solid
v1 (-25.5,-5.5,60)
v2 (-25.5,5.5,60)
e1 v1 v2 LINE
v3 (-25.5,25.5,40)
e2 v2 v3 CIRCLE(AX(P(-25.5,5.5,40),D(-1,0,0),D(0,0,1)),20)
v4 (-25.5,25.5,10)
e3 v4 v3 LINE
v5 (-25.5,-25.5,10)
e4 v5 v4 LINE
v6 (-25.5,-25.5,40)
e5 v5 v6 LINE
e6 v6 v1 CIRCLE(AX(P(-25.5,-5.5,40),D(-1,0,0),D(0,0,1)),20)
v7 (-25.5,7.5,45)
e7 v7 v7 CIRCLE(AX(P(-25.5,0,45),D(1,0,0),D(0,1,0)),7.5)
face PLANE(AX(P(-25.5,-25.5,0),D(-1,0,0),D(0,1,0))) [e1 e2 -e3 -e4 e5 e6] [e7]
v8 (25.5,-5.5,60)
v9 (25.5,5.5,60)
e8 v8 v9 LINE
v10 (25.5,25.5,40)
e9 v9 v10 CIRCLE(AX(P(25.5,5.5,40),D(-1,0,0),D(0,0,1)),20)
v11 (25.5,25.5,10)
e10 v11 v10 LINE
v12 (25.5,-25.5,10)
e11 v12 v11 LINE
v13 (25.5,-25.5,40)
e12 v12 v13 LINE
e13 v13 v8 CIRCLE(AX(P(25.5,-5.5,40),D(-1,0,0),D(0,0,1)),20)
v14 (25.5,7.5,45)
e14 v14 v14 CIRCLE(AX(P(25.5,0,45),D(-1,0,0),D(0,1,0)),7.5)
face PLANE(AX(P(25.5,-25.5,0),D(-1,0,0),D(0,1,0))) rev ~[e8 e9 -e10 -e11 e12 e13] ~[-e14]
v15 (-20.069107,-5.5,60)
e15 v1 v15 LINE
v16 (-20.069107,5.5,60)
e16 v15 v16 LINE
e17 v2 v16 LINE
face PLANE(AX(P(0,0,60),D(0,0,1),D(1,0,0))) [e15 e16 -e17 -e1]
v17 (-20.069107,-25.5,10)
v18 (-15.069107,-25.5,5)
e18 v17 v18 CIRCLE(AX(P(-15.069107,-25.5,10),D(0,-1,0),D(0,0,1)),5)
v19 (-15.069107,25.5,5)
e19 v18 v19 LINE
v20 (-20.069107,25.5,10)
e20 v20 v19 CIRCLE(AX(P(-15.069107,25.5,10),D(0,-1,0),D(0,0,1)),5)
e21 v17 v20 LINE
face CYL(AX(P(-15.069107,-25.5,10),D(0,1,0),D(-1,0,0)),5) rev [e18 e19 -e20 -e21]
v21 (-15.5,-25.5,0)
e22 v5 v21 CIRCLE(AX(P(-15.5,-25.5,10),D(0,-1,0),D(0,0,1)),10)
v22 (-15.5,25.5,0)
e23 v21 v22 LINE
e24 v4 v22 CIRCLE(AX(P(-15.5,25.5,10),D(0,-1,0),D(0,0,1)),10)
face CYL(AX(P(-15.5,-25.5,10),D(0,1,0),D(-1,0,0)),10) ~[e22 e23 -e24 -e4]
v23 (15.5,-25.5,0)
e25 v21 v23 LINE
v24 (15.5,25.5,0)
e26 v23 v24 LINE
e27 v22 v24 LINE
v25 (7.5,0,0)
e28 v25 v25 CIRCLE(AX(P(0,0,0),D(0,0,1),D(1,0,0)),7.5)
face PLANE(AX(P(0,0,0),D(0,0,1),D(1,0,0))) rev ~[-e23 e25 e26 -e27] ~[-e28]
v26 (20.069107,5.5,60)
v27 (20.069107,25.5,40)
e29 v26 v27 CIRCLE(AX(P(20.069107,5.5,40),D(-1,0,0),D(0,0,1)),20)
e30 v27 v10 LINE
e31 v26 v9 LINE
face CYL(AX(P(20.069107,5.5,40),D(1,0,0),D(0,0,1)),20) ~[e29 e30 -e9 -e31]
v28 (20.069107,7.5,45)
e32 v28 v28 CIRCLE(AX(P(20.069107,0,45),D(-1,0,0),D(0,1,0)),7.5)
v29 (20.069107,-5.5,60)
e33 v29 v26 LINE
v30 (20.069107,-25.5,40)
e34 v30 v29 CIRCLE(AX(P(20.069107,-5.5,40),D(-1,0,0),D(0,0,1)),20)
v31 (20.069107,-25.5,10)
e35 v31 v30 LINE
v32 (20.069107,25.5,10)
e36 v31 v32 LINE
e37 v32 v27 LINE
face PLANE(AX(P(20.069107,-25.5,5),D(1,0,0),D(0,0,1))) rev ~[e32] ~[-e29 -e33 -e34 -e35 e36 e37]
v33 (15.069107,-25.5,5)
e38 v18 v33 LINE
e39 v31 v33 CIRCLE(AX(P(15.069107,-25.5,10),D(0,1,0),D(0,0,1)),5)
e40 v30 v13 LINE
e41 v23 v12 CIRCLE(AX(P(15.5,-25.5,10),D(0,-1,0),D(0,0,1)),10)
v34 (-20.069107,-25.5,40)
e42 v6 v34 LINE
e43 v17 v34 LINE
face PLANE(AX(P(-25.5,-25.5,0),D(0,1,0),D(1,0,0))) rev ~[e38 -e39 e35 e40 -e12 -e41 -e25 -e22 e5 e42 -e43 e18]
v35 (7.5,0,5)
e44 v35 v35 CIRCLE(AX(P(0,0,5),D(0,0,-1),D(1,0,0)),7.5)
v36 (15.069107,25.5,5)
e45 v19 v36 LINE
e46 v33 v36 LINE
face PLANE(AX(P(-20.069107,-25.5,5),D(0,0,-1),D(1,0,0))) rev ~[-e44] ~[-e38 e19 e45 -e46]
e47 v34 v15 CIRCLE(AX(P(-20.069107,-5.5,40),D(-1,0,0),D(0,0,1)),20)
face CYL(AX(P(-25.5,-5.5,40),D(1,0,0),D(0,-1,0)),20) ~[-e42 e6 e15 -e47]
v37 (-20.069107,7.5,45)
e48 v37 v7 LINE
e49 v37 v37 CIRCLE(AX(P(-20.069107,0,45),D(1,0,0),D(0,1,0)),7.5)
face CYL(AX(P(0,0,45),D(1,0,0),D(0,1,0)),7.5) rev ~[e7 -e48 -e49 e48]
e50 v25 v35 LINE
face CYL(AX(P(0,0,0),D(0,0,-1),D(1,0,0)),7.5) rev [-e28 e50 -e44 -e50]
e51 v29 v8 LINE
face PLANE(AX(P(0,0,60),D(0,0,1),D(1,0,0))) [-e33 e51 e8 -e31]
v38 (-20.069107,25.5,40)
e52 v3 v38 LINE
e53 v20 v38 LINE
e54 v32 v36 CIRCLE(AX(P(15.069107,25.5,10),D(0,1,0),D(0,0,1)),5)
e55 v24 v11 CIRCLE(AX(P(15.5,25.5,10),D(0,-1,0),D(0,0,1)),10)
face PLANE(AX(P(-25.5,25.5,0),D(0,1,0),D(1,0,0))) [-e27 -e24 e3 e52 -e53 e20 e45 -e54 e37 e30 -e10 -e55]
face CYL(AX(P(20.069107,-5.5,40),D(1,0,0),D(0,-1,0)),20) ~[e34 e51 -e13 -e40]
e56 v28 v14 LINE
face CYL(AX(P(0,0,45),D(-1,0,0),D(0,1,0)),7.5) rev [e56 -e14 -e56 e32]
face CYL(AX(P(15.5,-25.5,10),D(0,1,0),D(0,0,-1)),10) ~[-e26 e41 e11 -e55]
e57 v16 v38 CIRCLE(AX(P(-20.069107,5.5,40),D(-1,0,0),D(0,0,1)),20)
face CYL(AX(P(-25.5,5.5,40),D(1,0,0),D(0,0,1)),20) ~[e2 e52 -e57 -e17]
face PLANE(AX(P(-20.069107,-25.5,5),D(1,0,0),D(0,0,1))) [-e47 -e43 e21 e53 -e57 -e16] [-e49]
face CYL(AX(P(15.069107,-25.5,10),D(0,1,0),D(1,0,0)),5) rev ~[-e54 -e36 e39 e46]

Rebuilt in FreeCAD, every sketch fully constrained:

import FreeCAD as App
import Part
import Sketcher
Q = App.Units.Quantity


def edges_at(feature, points):
    """Names of the edges that pass closest to the given points."""
    edges = feature.Shape.Edges
    near = lambda p: min(range(len(edges)), key=lambda i: edges[i].distToShape(Part.Vertex(*p))[0])
    return sorted({f"Edge{near(p) + 1}" for p in points})


def add_polygon(sketch, points):
    """Adds a closed chain of lines whose ends are joined by coincident constraints."""
    first, n = sketch.GeometryCount, len(points)
    for a, b in zip(points, points[1:] + points[:1]):
        sketch.addGeometry(Part.LineSegment(App.Vector(*a, 0), App.Vector(*b, 0)), False)
    for i in range(n):
        sketch.addConstraint(Sketcher.Constraint("Coincident", first + i, 2, first + (i + 1) % n, 1))

doc = App.newDocument("Part")
params = doc.addObject("Spreadsheet::Sheet", "Params")
for row, (alias, value) in enumerate([
    ("sketch1_width", "51 mm"),
    ("pad1_length", "60 mm"),
    ("sketch2_height", "55 mm"),
    ("pocket1_length", "51 mm"),
    ("sketch3_diameter", "15 mm"),
    ("sketch4_diameter", "15 mm"),
    ("fillet_radius", "10 mm"),
    ("fillet2_radius", "5 mm"),
    ("fillet3_radius", "20 mm"),
], start=1):
    params.set(f"A{row}", alias)
    params.set(f"B{row}", "=" + value)
    params.setAlias(f"B{row}", alias)

body = doc.addObject("PartDesign::Body", "Body")

sketch1 = body.newObject("Sketcher::SketchObject", "Sketch")
sketch1.AttachmentSupport = (doc.getObject("XY_Plane"), [""])
sketch1.MapMode = "FlatFace"
add_polygon(sketch1, [(-26, 26), (-26, -26), (26, -26), (26, 26)])
sketch1.addConstraint([
    Sketcher.Constraint("Vertical", 0),
    Sketcher.Constraint("Horizontal", 1),
    Sketcher.Constraint("Vertical", 2),
    Sketcher.Constraint("Horizontal", 3),
    Sketcher.Constraint("Symmetric", 0, 2, 2, 2, -1, 1),
    Sketcher.Constraint("Equal", 3, 0),
    Sketcher.Constraint("DistanceX", 1, 1, 1, 2, Q("51 mm")),
])
sketch1.setExpression("Constraints[10]", "Params.sketch1_width")
pad1 = body.newObject("PartDesign::Pad", "Pad")
pad1.Profile = sketch1
pad1.setExpression("Length", "Params.pad1_length")

sketch2 = body.newObject("Sketcher::SketchObject", "Sketch001")
sketch2.AttachmentSupport = (doc.getObject("XZ_Plane"), [""])
sketch2.MapMode = "FlatFace"
sketch2.AttachmentOffset = App.Placement(App.Vector(0, 0, 25.5), App.Rotation())
add_polygon(sketch2, [(-20, 60), (-20, 5), (20, 5), (20, 60)])
sketch2.addConstraint([
    Sketcher.Constraint("Vertical", 0),
    Sketcher.Constraint("Horizontal", 1),
    Sketcher.Constraint("Vertical", 2),
    Sketcher.Constraint("Horizontal", 3),
    Sketcher.Constraint("DistanceY", 0, 2, 0, 1, Q("55 mm")),
    Sketcher.Constraint("DistanceY", -1, 1, 0, 2, Q("5 mm")),
    Sketcher.Constraint("DistanceX", 1, 1, 1, 2, Q("40.138214 mm")),
    Sketcher.Constraint("DistanceX", 0, 2, -1, 1, Q("20.069107 mm")),
])
sketch2.setExpression("Constraints[8]", "Params.sketch2_height")
pocket1 = body.newObject("PartDesign::Pocket", "Pocket")
pocket1.Profile = sketch2
pocket1.setExpression("Length", "Params.pocket1_length")

sketch3 = body.newObject("Sketcher::SketchObject", "Sketch002")
sketch3.AttachmentSupport = (doc.getObject("XY_Plane"), [""])
sketch3.MapMode = "FlatFace"
sketch3.addGeometry(Part.Circle(App.Vector(0, 0, 0), App.Vector(0, 0, 1), 8), False)
sketch3.addConstraint([
    Sketcher.Constraint("Coincident", 0, 3, -1, 1),
    Sketcher.Constraint("Diameter", 0, Q("15 mm")),
])
sketch3.setExpression("Constraints[1]", "Params.sketch3_diameter")
pocket2 = body.newObject("PartDesign::Pocket", "Pocket001")
pocket2.Profile = sketch3
pocket2.Type = "ThroughAll"
pocket2.Reversed = True

sketch4 = body.newObject("Sketcher::SketchObject", "Sketch003")
sketch4.AttachmentSupport = (doc.getObject("YZ_Plane"), [""])
sketch4.MapMode = "FlatFace"
sketch4.addGeometry(Part.Circle(App.Vector(0, 45, 0), App.Vector(0, 0, 1), 8), False)
sketch4.addConstraint([
    Sketcher.Constraint("PointOnObject", 0, 3, -2),
    Sketcher.Constraint("Diameter", 0, Q("15 mm")),
    Sketcher.Constraint("DistanceY", -1, 1, 0, 3, Q("45 mm")),
])
sketch4.setExpression("Constraints[1]", "Params.sketch4_diameter")
pocket3 = body.newObject("PartDesign::Pocket", "Pocket002")
pocket3.Profile = sketch4
pocket3.Type = "ThroughAll"
pocket3.Midplane = True
doc.recompute()

fillet = body.newObject("PartDesign::Fillet", "Fillet")
fillet.Base = (pocket3, edges_at(pocket3, [(-25.5, 0, 0), (25.5, 0, 0)]))
fillet.setExpression("Radius", "Params.fillet_radius")
doc.recompute()

fillet2 = body.newObject("PartDesign::Fillet", "Fillet001")
fillet2.Base = (fillet, edges_at(fillet, [(-20.069, 0, 5), (20.069, 0, 5)]))
fillet2.setExpression("Radius", "Params.fillet2_radius")
doc.recompute()

fillet3 = body.newObject("PartDesign::Fillet", "Fillet002")
fillet3.Base = (fillet2, edges_at(fillet2, [
    (22.785, 25.5, 60),
    (-22.785, 25.5, 60),
    (22.785, -25.5, 60),
    (-22.785, -25.5, 60),
]))
fillet3.setExpression("Radius", "Params.fillet3_radius")

doc.recompute()
